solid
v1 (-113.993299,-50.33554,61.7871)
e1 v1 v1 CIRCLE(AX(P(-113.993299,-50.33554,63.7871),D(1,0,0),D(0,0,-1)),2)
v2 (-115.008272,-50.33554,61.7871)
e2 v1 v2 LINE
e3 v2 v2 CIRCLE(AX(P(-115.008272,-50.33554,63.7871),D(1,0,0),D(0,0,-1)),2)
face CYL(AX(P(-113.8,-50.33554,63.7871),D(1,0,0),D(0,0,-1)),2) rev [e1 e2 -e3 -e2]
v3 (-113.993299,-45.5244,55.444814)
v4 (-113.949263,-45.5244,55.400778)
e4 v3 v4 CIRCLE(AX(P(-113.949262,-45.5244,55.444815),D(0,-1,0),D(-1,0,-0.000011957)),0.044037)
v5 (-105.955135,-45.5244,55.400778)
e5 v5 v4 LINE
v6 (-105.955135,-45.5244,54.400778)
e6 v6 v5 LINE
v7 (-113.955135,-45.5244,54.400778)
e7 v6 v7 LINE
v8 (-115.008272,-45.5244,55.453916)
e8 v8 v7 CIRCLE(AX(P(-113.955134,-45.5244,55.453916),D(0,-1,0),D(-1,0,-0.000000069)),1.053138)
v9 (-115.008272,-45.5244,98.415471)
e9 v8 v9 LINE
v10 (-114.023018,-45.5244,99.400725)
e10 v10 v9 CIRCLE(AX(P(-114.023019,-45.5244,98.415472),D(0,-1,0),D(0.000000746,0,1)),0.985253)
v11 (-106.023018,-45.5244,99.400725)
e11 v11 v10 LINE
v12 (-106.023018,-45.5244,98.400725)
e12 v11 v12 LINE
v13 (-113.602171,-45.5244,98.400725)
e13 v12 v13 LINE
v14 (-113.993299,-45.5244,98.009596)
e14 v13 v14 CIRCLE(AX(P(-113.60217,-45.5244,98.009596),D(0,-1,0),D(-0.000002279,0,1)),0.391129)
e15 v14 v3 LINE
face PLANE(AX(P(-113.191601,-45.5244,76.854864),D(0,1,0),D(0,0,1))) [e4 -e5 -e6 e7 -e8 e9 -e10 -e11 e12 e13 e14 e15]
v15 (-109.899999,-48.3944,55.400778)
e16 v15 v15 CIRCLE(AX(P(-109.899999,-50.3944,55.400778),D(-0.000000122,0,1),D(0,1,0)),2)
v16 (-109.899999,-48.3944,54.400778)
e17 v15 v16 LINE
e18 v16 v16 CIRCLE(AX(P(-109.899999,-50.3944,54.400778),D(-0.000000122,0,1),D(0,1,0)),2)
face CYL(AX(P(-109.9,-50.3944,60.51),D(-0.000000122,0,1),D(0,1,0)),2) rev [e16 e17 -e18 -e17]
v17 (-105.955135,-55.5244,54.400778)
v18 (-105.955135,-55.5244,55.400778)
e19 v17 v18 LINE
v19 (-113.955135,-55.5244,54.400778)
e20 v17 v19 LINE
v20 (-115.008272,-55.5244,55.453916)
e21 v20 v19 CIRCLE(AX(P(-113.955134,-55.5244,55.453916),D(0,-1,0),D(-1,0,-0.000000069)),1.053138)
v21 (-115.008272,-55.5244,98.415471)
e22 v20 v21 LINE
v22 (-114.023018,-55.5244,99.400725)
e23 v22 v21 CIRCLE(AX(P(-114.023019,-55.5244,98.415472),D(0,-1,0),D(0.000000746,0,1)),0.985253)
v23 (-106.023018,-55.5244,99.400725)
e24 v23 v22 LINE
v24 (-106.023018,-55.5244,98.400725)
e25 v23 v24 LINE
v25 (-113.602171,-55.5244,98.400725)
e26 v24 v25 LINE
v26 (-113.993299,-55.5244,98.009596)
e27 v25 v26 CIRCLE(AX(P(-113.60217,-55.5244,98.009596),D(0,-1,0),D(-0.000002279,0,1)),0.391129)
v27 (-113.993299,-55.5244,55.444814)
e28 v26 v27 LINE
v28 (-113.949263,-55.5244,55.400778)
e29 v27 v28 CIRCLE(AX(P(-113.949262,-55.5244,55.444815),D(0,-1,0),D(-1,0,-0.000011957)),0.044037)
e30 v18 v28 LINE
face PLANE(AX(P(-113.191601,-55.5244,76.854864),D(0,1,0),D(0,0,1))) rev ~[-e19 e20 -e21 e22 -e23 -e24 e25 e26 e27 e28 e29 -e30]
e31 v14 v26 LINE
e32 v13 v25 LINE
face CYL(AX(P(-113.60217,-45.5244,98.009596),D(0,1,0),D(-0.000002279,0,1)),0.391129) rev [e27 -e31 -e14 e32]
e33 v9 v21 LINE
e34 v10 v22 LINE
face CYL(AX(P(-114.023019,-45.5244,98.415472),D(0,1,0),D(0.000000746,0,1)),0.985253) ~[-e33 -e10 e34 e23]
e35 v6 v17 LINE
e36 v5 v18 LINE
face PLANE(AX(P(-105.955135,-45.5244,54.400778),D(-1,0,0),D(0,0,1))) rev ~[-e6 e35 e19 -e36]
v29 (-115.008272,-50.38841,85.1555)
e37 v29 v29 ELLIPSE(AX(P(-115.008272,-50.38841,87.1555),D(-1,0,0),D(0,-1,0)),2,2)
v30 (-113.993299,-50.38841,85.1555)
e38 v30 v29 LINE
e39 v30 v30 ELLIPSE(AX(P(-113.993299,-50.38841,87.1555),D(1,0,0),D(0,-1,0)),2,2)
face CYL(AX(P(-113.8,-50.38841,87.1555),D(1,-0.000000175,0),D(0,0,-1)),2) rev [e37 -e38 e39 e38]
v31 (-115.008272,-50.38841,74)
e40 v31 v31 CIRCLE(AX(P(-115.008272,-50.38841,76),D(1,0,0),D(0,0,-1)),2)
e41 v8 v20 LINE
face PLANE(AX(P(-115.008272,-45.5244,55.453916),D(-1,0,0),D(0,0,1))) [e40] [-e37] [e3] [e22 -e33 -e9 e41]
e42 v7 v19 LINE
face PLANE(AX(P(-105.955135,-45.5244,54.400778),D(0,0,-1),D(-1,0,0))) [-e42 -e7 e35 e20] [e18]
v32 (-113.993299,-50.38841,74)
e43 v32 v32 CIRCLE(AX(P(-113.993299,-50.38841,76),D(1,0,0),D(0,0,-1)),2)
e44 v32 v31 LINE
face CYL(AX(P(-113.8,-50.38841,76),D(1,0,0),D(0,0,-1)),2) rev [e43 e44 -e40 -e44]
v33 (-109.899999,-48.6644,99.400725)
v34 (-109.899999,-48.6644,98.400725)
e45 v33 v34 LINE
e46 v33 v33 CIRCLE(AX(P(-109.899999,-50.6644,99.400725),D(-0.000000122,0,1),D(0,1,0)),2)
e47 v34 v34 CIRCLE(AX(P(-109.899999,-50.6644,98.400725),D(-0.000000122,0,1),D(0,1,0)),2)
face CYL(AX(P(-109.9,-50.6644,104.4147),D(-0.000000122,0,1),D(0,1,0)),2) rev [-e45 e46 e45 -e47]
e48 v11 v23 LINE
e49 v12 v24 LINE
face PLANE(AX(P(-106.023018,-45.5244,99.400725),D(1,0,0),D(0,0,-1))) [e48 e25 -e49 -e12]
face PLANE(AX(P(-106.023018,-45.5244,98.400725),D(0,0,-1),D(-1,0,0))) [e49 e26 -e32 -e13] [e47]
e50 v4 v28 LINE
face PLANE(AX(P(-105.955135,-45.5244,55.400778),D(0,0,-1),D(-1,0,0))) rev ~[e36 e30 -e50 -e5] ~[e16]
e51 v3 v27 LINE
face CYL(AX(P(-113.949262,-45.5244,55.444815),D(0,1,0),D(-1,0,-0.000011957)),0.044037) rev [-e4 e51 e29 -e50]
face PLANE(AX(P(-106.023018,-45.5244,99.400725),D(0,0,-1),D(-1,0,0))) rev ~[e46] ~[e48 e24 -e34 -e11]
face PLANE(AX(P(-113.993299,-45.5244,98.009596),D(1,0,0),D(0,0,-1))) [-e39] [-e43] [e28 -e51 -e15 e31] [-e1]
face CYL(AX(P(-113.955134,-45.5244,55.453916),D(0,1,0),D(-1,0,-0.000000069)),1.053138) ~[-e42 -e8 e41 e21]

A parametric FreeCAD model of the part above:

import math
import FreeCAD as App
import Part
import Sketcher
Q = App.Units.Quantity

doc = App.newDocument("Part")
body = doc.addObject("PartDesign::Body", "Body")

sketch1 = body.newObject("Sketcher::SketchObject", "Sketch")
sketch1.AttachmentSupport = (doc.getObject("XY_Plane"), [""])
sketch1.MapMode = "FlatFace"
sketch1.addGeometry(Part.Circle(App.Vector(0, 0, 0), App.Vector(0, 0, 1), 2), False)
sketch1.addConstraint([
    Sketcher.Constraint("Coincident", 0, 3, -1, 1),
    Sketcher.Constraint("Diameter", 0, Q("4 mm")),
])
pad1 = body.newObject("PartDesign::Pad", "Pad")
pad1.Profile = sketch1
pad1.Length = 10
body2 = doc.addObject("PartDesign::Body", "Body001")
doc.recompute()

body.Placement = App.Placement(App.Vector(0, 0, 0), App.Rotation(App.Vector(0, 1, 0), 90))
boolean = body2.newObject("PartDesign::Boolean", "Boolean")
boolean.Type = "Fuse"
boolean.addObjects([body])
body3 = doc.addObject("PartDesign::Body", "Body002")
doc.recompute()

body2.Placement = App.Placement(App.Vector(15.49, 3.9, 4.87), App.Rotation(App.Vector(0, 0, 1), 0.000007))
boolean2 = body3.newObject("PartDesign::Boolean", "Boolean001")
boolean2.Type = "Fuse"
boolean2.addObjects([body2])
body4 = doc.addObject("PartDesign::Body", "Body003")

sketch2 = body4.newObject("Sketcher::SketchObject", "Sketch001")
sketch2.AttachmentSupport = (doc.getObject("XY_Plane003"), [""])
sketch2.MapMode = "FlatFace"
sketch2.addGeometry(Part.Circle(App.Vector(0, 0, 0), App.Vector(0, 0, 1), 2), False)
sketch2.addConstraint([
    Sketcher.Constraint("Coincident", 0, 3, -1, 1),
    Sketcher.Constraint("Diameter", 0, Q("4 mm")),
])
pad2 = body4.newObject("PartDesign::Pad", "Pad001")
pad2.Profile = sketch2
pad2.Length = 10
body5 = doc.addObject("PartDesign::Body", "Body004")
doc.recompute()

body4.Placement = App.Placement(App.Vector(0, 0, 0), App.Rotation(App.Vector(0, 1, 0), 90))
boolean3 = body5.newObject("PartDesign::Boolean", "Boolean002")
boolean3.Type = "Fuse"
boolean3.addObjects([body4])
body6 = doc.addObject("PartDesign::Body", "Body005")
doc.recompute()

body5.Placement = App.Placement(App.Vector(-28.4147, 3.9, 5.14), App.Rotation(App.Vector(0, 0, 1), 0.000007))
boolean4 = body6.newObject("PartDesign::Boolean", "Boolean003")
boolean4.Type = "Fuse"
boolean4.addObjects([body5])
body7 = doc.addObject("PartDesign::Body", "Body006")

sketch3 = body7.newObject("Sketcher::SketchObject", "Sketch002")
sketch3.AttachmentSupport = (doc.getObject("XY_Plane006"), [""])
sketch3.MapMode = "FlatFace"
sketch3.addGeometry(Part.Circle(App.Vector(0, 0, 0), App.Vector(0, 0, 1), 2), False)
sketch3.addConstraint([
    Sketcher.Constraint("Coincident", 0, 3, -1, 1),
    Sketcher.Constraint("Diameter", 0, Q("4 mm")),
])
pad3 = body7.newObject("PartDesign::Pad", "Pad002")
pad3.Profile = sketch3
pad3.Length = 2
body8 = doc.addObject("PartDesign::Body", "Body007")
doc.recompute()

body7.Placement = App.Placement(App.Vector(0, 0, 0), App.Rotation(App.Vector(1, 0, 0), 271.492946))
boolean5 = body8.newObject("PartDesign::Boolean", "Boolean004")
boolean5.Type = "Fuse"
boolean5.addObjects([body7])
body9 = doc.addObject("PartDesign::Body", "Body008")
doc.recompute()

body8.Placement = App.Placement(App.Vector(0, 0, 0), App.Rotation(App.Vector(0, 1, 0), 272.98249))
boolean6 = body9.newObject("PartDesign::Boolean", "Boolean005")
boolean6.Type = "Fuse"
boolean6.addObjects([body8])
body10 = doc.addObject("PartDesign::Body", "Body009")
doc.recompute()

body9.Placement = App.Placement(App.Vector(-26, 5.29, 4.9), App.Rotation(App.Vector(0, 0, 1), 267.755985))
boolean7 = body10.newObject("PartDesign::Boolean", "Boolean006")
boolean7.Type = "Fuse"
boolean7.addObjects([body9])
body11 = doc.addObject("PartDesign::Body", "Body010")

sketch4 = body11.newObject("Sketcher::SketchObject", "Sketch003")
sketch4.AttachmentSupport = (doc.getObject("XY_Plane010"), [""])
sketch4.MapMode = "FlatFace"
sketch4.addGeometry(Part.Circle(App.Vector(0, 0, 0), App.Vector(0, 0, 1), 2), False)
sketch4.addConstraint([
    Sketcher.Constraint("Coincident", 0, 3, -1, 1),
    Sketcher.Constraint("Diameter", 0, Q("4 mm")),
])
pad4 = body11.newObject("PartDesign::Pad", "Pad003")
pad4.Profile = sketch4
pad4.Length = 2
body12 = doc.addObject("PartDesign::Body", "Body011")
doc.recompute()

body11.Placement = App.Placement(App.Vector(-11.1555, 0, 4.86401), App.Rotation(App.Vector(1, 0, 0), 90.00001))
boolean8 = body12.newObject("PartDesign::Boolean", "Boolean007")
boolean8.Type = "Fuse"
boolean8.addObjects([body11])
body13 = doc.addObject("PartDesign::Body", "Body012")

sketch5 = body13.newObject("Sketcher::SketchObject", "Sketch004")
sketch5.AttachmentSupport = (doc.getObject("XY_Plane012"), [""])
sketch5.MapMode = "FlatFace"
sketch5.addGeometry(Part.Circle(App.Vector(0, 0, 0), App.Vector(0, 0, 1), 2), False)
sketch5.addConstraint([
    Sketcher.Constraint("Coincident", 0, 3, -1, 1),
    Sketcher.Constraint("Diameter", 0, Q("4 mm")),
])
pad5 = body13.newObject("PartDesign::Pad", "Pad004")
pad5.Profile = sketch5
pad5.Length = 2
body14 = doc.addObject("PartDesign::Body", "Body013")
doc.recompute()

body13.Placement = App.Placement(App.Vector(0, 0, 0), App.Rotation(App.Vector(1, 0, 0), 90))
boolean9 = body14.newObject("PartDesign::Boolean", "Boolean008")
boolean9.Type = "Fuse"
boolean9.addObjects([body13])
body15 = doc.addObject("PartDesign::Body", "Body014")
doc.recompute()

body14.Placement = App.Placement(App.Vector(0, 0, 4.86401), App.Rotation(App.Vector(0, 0, 1), 0))
boolean10 = body15.newObject("PartDesign::Boolean", "Boolean009")
boolean10.Type = "Fuse"
boolean10.addObjects([body14])
body16 = doc.addObject("PartDesign::Body", "Body015")

sketch6 = body16.newObject("Sketcher::SketchObject", "Sketch005")
sketch6.AttachmentSupport = (doc.getObject("XY_Plane015"), [""])
sketch6.MapMode = "FlatFace"
sketch6.addGeometry(Part.Circle(App.Vector(0, 0, 0), App.Vector(0, 0, 1), 2), False)
sketch6.addConstraint([
    Sketcher.Constraint("Coincident", 0, 3, -1, 1),
    Sketcher.Constraint("Diameter", 0, Q("4 mm")),
])
pad6 = body16.newObject("PartDesign::Pad", "Pad005")
pad6.Profile = sketch6
pad6.Length = 2
body17 = doc.addObject("PartDesign::Body", "Body016")
doc.recompute()

body16.Placement = App.Placement(App.Vector(0, 0, 0), App.Rotation(App.Vector(1, 0, 0), 90))
boolean11 = body17.newObject("PartDesign::Boolean", "Boolean010")
boolean11.Type = "Fuse"
boolean11.addObjects([body16])
body18 = doc.addObject("PartDesign::Body", "Body017")
doc.recompute()

body17.Placement = App.Placement(App.Vector(12.2129, 0, 4.81114), App.Rotation(App.Vector(0, 0, 1), 0))
boolean12 = body18.newObject("PartDesign::Boolean", "Boolean011")
boolean12.Type = "Fuse"
boolean12.addObjects([body17])
body19 = doc.addObject("PartDesign::Body", "Body018")

sketch7 = body19.newObject("Sketcher::SketchObject", "Sketch006")
sketch7.AttachmentSupport = (doc.getObject("XY_Plane018"), [""])
sketch7.MapMode = "FlatFace"
sketch7.addGeometry(Part.Circle(App.Vector(0, 0, 0), App.Vector(0, 0, 1), 2), False)
sketch7.addConstraint([
    Sketcher.Constraint("Coincident", 0, 3, -1, 1),
    Sketcher.Constraint("Diameter", 0, Q("4 mm")),
])
pad7 = body19.newObject("PartDesign::Pad", "Pad006")
pad7.Profile = sketch7
pad7.Length = 2
body20 = doc.addObject("PartDesign::Body", "Body019")
doc.recompute()

body19.Placement = App.Placement(App.Vector(0, 0, 0), App.Rotation(App.Vector(1, 0, 0), 271.492946))
boolean13 = body20.newObject("PartDesign::Boolean", "Boolean012")
boolean13.Type = "Fuse"
boolean13.addObjects([body19])
body21 = doc.addObject("PartDesign::Body", "Body020")
doc.recompute()

body20.Placement = App.Placement(App.Vector(0, 0, 0), App.Rotation(App.Vector(0, 1, 0), 272.98249))
boolean14 = body21.newObject("PartDesign::Boolean", "Boolean013")
boolean14.Type = "Fuse"
boolean14.addObjects([body20])
body22 = doc.addObject("PartDesign::Body", "Body021")
doc.recompute()

body21.Placement = App.Placement(App.Vector(25, 5.38, 4.9), App.Rotation(App.Vector(0, 0, 1), 267.755985))
boolean15 = body22.newObject("PartDesign::Boolean", "Boolean014")
boolean15.Type = "Fuse"
boolean15.addObjects([body21])
body23 = doc.addObject("PartDesign::Body", "Body022")

sketch8 = body23.newObject("Sketcher::SketchObject", "Sketch007")
sketch8.AttachmentSupport = (doc.getObject("XY_Plane022"), [""])
sketch8.MapMode = "FlatFace"
sketch8.addGeometry([
    Part.LineSegment(App.Vector(-22.415471, -1.208272, 0), App.Vector(20.546084, -1.208272, 0)),
    Part.ArcOfCircle(Part.Circle(App.Vector(20.546084, -0.155134, 0), App.Vector(0, 0, 1), 1.053138), math.radians(-89.999996), math.radians(-0.000058)),
    Part.LineSegment(App.Vector(21.599222, -0.155135, 0), App.Vector(21.599222, 7.844865, 0)),
    Part.LineSegment(App.Vector(21.599222, 7.844865, 0), App.Vector(20.599222, 7.844865, 0)),
    Part.LineSegment(App.Vector(20.599222, 7.844865, 0), App.Vector(20.599222, -0.149263, 0)),
    Part.ArcOfCircle(Part.Circle(App.Vector(20.555185, -0.149262, 0), App.Vector(0, 0, 1), 0.044037), math.radians(-89.999314), math.radians(-0.000686)),
    Part.LineSegment(App.Vector(20.555186, -0.193299, 0), App.Vector(-22.009596, -0.193299, 0)),
    Part.ArcOfCircle(Part.Circle(App.Vector(-22.009596, 0.19783, 0), App.Vector(0, 0, 1), 0.391129), math.radians(-179.999869), math.radians(-89.999984)),
    Part.LineSegment(App.Vector(-22.400725, 0.197829, 0), App.Vector(-22.400725, 7.776982, 0)),
    Part.LineSegment(App.Vector(-22.400725, 7.776982, 0), App.Vector(-23.400725, 7.776982, 0)),
    Part.LineSegment(App.Vector(-23.400725, 7.776982, 0), App.Vector(-23.400725, -0.223018, 0)),
    Part.ArcOfCircle(Part.Circle(App.Vector(-22.415472, -0.223019, 0), App.Vector(0, 0, 1), 0.985253), math.radians(179.999957), math.radians(270.000043)),
], False)
sketch8.addConstraint([
    Sketcher.Constraint("Tangent", 0, 2, 1, 1),
    Sketcher.Constraint("Tangent", 1, 2, 2, 1),
    Sketcher.Constraint("Coincident", 2, 2, 3, 1),
    Sketcher.Constraint("Coincident", 3, 2, 4, 1),
    Sketcher.Constraint("Coincident", 4, 2, 5, 2),
    Sketcher.Constraint("Coincident", 5, 1, 6, 1),
    Sketcher.Constraint("Tangent", 6, 2, 7, 2),
    Sketcher.Constraint("Coincident", 7, 1, 8, 1),
    Sketcher.Constraint("Coincident", 8, 2, 9, 1),
    Sketcher.Constraint("Coincident", 9, 2, 10, 1),
    Sketcher.Constraint("Tangent", 10, 2, 11, 1),
    Sketcher.Constraint("Tangent", 11, 2, 0, 1),
    Sketcher.Constraint("Horizontal", 0),
    Sketcher.Constraint("Vertical", 2),
    Sketcher.Constraint("Horizontal", 3),
    Sketcher.Constraint("Vertical", 4),
    Sketcher.Constraint("Horizontal", 6),
    Sketcher.Constraint("Vertical", 8),
    Sketcher.Constraint("Horizontal", 9),
    Sketcher.Constraint("Vertical", 10),
    Sketcher.Constraint("Horizontal", 5, 3, 4, 2),
    Sketcher.Constraint("Equal", 3, 9),
    Sketcher.Constraint("Equal", 2, 10),
    Sketcher.Constraint("DistanceX", 3, 2, 3, 1, Q("1 mm")),
    Sketcher.Constraint("DistanceY", 2, 1, 2, 2, Q("8 mm")),
    Sketcher.Constraint("Radius", 1, Q("1.053138 mm")),
    Sketcher.Constraint("Radius", 7, Q("0.391129 mm")),
    Sketcher.Constraint("Radius", 5, Q("0.044037 mm")),
    Sketcher.Constraint("Radius", 11, Q("0.985253 mm")),
    Sketcher.Constraint("DistanceX", 6, 2, 6, 1, Q("42.564782 mm")),
    Sketcher.Constraint("DistanceY", 4, 2, 4, 1, Q("7.994128 mm")),
    Sketcher.Constraint("DistanceY", 5, 1, -1, 1, Q("0.193299 mm")),
    Sketcher.Constraint("DistanceX", 0, 2, 5, 1, Q("0.009102 mm")),
    Sketcher.Constraint("DistanceY", 11, 2, 7, 1, Q("1.406101 mm")),
    Sketcher.Constraint("DistanceX", 11, 3, -1, 1, Q("22.415472 mm")),
])
pad8 = body23.newObject("PartDesign::Pad", "Pad007")
pad8.Profile = sketch8
pad8.Length = 10
doc.recompute()

boolean16 = body23.newObject("PartDesign::Boolean", "Boolean015")
boolean16.Type = "Cut"
boolean16.addObjects([body22])
doc.recompute()

boolean17 = body23.newObject("PartDesign::Boolean", "Boolean016")
boolean17.Type = "Cut"
boolean17.addObjects([body18])
doc.recompute()

boolean18 = body23.newObject("PartDesign::Boolean", "Boolean017")
boolean18.Type = "Cut"
boolean18.addObjects([body15])
doc.recompute()

boolean19 = body23.newObject("PartDesign::Boolean", "Boolean018")
boolean19.Type = "Cut"
boolean19.addObjects([body12])
doc.recompute()

boolean20 = body23.newObject("PartDesign::Boolean", "Boolean019")
boolean20.Type = "Cut"
boolean20.addObjects([body10])
doc.recompute()

boolean21 = body23.newObject("PartDesign::Boolean", "Boolean020")
boolean21.Type = "Cut"
boolean21.addObjects([body6])
doc.recompute()

boolean22 = body23.newObject("PartDesign::Boolean", "Boolean021")
boolean22.Type = "Cut"
boolean22.addObjects([body3])
body24 = doc.addObject("PartDesign::Body", "Body023")
doc.recompute()

body23.Placement = App.Placement(App.Vector(0, 0, 0), App.Rotation(App.Vector(0, 1, 0), 90))
boolean23 = body24.newObject("PartDesign::Boolean", "Boolean022")
boolean23.Type = "Fuse"
boolean23.addObjects([body23])
body25 = doc.addObject("PartDesign::Body", "Body024")
doc.recompute()

body24.Placement = App.Placement(App.Vector(-113.8, -45.5244, 76), App.Rotation(App.Vector(0, 0, 1), 270))
boolean24 = body25.newObject("PartDesign::Boolean", "Boolean023")
boolean24.Type = "Fuse"
boolean24.addObjects([body24])

doc.recompute()
